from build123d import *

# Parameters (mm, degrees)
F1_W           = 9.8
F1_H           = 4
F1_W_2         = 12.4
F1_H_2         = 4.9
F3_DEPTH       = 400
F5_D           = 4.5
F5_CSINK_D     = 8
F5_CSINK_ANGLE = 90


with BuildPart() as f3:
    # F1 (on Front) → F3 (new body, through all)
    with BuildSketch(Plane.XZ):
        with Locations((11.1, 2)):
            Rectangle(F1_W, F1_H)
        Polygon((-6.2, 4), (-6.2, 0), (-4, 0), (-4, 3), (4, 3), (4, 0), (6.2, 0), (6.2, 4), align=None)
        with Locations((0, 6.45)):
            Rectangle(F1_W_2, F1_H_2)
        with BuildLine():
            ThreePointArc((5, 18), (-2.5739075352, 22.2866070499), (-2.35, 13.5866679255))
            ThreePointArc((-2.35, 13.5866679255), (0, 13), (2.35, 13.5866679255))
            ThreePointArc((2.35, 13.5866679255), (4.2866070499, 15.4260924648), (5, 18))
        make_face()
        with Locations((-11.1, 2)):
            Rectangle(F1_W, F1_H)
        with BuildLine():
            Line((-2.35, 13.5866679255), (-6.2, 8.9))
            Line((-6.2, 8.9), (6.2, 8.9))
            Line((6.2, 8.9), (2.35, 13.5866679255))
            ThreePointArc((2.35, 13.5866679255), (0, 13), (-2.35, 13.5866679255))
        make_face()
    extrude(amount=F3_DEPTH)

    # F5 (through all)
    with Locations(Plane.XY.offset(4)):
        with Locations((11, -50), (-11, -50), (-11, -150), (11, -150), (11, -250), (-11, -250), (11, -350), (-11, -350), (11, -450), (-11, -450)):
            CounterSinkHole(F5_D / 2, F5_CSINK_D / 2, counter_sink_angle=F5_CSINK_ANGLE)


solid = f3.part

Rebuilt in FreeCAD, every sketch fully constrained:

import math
import FreeCAD as App
import Part
import Sketcher

V = App.Vector

doc = App.newDocument("Part")
params = doc.addObject("Spreadsheet::Sheet", "Params")
for row, (alias, value) in enumerate([
    ("sketch1_radius", "5 mm"),
    ("sketch1_width", "12 mm"),
    ("sketch1_width2", "8 mm"),
    ("sketch1_height", "4 mm"),
    ("sketch1_height2", "3 mm"),
    ("pad1_length", "400 mm"),
    ("sketch2_diameter", "4.5 mm"),
    ("hole_diameter", "4.5 mm"),
    ("hole_csink_diameter", "8 mm"),
], start=1):
    params.set(f"A{row}", alias)
    params.set(f"B{row}", "=" + value)
    params.setAlias(f"B{row}", alias)

body = doc.addObject("PartDesign::Body", "Body")

# Sketch on XZ plane
sketch1 = doc.addObject("Sketcher::SketchObject", "Sketch")
body.addObject(sketch1)
sketch1.AttachmentSupport = (doc.XZ_Plane, [""])
sketch1.MapMode = "FlatFace"
sketch1.addGeometry([
    Part.LineSegment(V(16, 0, 0), V(16, 4, 0)),  # 0
    Part.LineSegment(V(16, 4, 0), V(6.2, 4, 0)),  # 1
    Part.LineSegment(V(6.2, 4, 0), V(6.2, 8.9, 0)),  # 2
    Part.LineSegment(V(6.2, 8.9, 0), V(2.4, 13.6, 0)),  # 3
    Part.ArcOfCircle(Part.Circle(V(0, 18, 0), V(0, 0, 1), 5), math.radians(-62), math.radians(0)),  # 4
    Part.ArcOfCircle(Part.Circle(V(0, 18, 0), V(0, 0, 1), 5), math.radians(0), math.radians(242)),  # 5
    Part.LineSegment(V(-2.4, 13.6, 0), V(-6.2, 8.9, 0)),  # 6
    Part.LineSegment(V(-6.2, 8.9, 0), V(-6.2, 4, 0)),  # 7
    Part.LineSegment(V(-6.2, 4, 0), V(-16, 4, 0)),  # 8
    Part.LineSegment(V(-16, 4, 0), V(-16, 0, 0)),  # 9
    Part.LineSegment(V(-16, 0, 0), V(-4, 0, 0)),  # 10
    Part.LineSegment(V(-4, 0, 0), V(-4, 3, 0)),  # 11
    Part.LineSegment(V(-4, 3, 0), V(4, 3, 0)),  # 12
    Part.LineSegment(V(4, 3, 0), V(4, 0, 0)),  # 13
    Part.LineSegment(V(4, 0, 0), V(16, 0, 0)),  # 14
], False)
sketch1.addConstraint([
    Sketcher.Constraint("Coincident", 0, 2, 1, 1),
    Sketcher.Constraint("Coincident", 1, 2, 2, 1),
    Sketcher.Constraint("Coincident", 2, 2, 3, 1),
    Sketcher.Constraint("Coincident", 3, 2, 4, 1),
    Sketcher.Constraint("Tangent", 4, 2, 5, 1),
    Sketcher.Constraint("Coincident", 5, 2, 6, 1),
    Sketcher.Constraint("Coincident", 6, 2, 7, 1),
    Sketcher.Constraint("Coincident", 7, 2, 8, 1),
    Sketcher.Constraint("Coincident", 8, 2, 9, 1),
    Sketcher.Constraint("Coincident", 9, 2, 10, 1),
    Sketcher.Constraint("Coincident", 10, 2, 11, 1),
    Sketcher.Constraint("Coincident", 11, 2, 12, 1),
    Sketcher.Constraint("Coincident", 12, 2, 13, 1),
    Sketcher.Constraint("Coincident", 13, 2, 14, 1),
    Sketcher.Constraint("Coincident", 14, 2, 0, 1),
    Sketcher.Constraint("Vertical", 0),
    Sketcher.Constraint("Horizontal", 1),
    Sketcher.Constraint("Vertical", 2),
    Sketcher.Constraint("Vertical", 7),
    Sketcher.Constraint("Horizontal", 8),
    Sketcher.Constraint("Vertical", 9),
    Sketcher.Constraint("Horizontal", 10),
    Sketcher.Constraint("Vertical", 11),
    Sketcher.Constraint("Horizontal", 12),
    Sketcher.Constraint("Vertical", 13),
    Sketcher.Constraint("Horizontal", 14),
    Sketcher.Constraint("Equal", 4, 5),
    Sketcher.Constraint("Symmetric", 10, 2, 13, 2, -1, 1),
    Sketcher.Constraint("Symmetric", 3, 2, 5, 2, -2),
    Sketcher.Constraint("Symmetric", 2, 2, 6, 2, -2),
    Sketcher.Constraint("Symmetric", 0, 2, 8, 2, -2),
    Sketcher.Constraint("PointOnObject", 9, 2, -1),
    Sketcher.Constraint("Horizontal", 5, 3, 4, 2),
    Sketcher.Constraint("Radius", 4, 5.0),
    Sketcher.Constraint("DistanceX", 10, 1, 10, 2, 12.0),
    Sketcher.Constraint("DistanceX", 12, 1, 12, 2, 8.0),
    Sketcher.Constraint("DistanceY", 0, 1, 0, 2, 4.0),
    Sketcher.Constraint("DistanceY", 11, 1, 11, 2, 3.0),
    Sketcher.Constraint("DistanceX", 1, 2, 1, 1, 9.8),
    Sketcher.Constraint("DistanceY", 2, 1, 2, 2, 4.9),
    Sketcher.Constraint("DistanceY", -1, 1, 4, 3, 18.0),
    Sketcher.Constraint("DistanceX", 5, 2, 3, 2, 4.7),
])
sketch1.setExpression("Constraints[33]", "Params.sketch1_radius")
sketch1.setExpression("Constraints[34]", "Params.sketch1_width")
sketch1.setExpression("Constraints[35]", "Params.sketch1_width2")
sketch1.setExpression("Constraints[36]", "Params.sketch1_height")
sketch1.setExpression("Constraints[37]", "Params.sketch1_height2")
pad1 = doc.addObject("PartDesign::Pad", "Pad")
body.addObject(pad1)
pad1.Profile = sketch1
pad1.setExpression("Length", "Params.pad1_length")

# Sketch on XY plane
sketch2 = doc.addObject("Sketcher::SketchObject", "Sketch001")
body.addObject(sketch2)
sketch2.AttachmentSupport = (doc.XY_Plane, [""])
sketch2.MapMode = "FlatFace"
sketch2.AttachmentOffset = App.Placement(V(0, 0, 4), App.Rotation())
sketch2.addGeometry([
    Part.Circle(V(11, -50, 0), V(0, 0, 1), 2.2),  # 0
    Part.Circle(V(-11, -50, 0), V(0, 0, 1), 2.2),  # 1
    Part.Circle(V(-11, -150, 0), V(0, 0, 1), 2.2),  # 2
    Part.Circle(V(11, -150, 0), V(0, 0, 1), 2.2),  # 3
    Part.Circle(V(11, -250, 0), V(0, 0, 1), 2.2),  # 4
    Part.Circle(V(-11, -250, 0), V(0, 0, 1), 2.2),  # 5
    Part.Circle(V(11, -350, 0), V(0, 0, 1), 2.2),  # 6
    Part.Circle(V(-11, -350, 0), V(0, 0, 1), 2.2),  # 7
    Part.Circle(V(11, -450, 0), V(0, 0, 1), 2.2),  # 8
    Part.Circle(V(-11, -450, 0), V(0, 0, 1), 2.2),  # 9
], False)
sketch2.addConstraint([
    Sketcher.Constraint("Equal", 0, 1),
    Sketcher.Constraint("Equal", 1, 2),
    Sketcher.Constraint("Equal", 2, 3),
    Sketcher.Constraint("Equal", 3, 4),
    Sketcher.Constraint("Equal", 4, 5),
    Sketcher.Constraint("Equal", 5, 6),
    Sketcher.Constraint("Equal", 6, 7),
    Sketcher.Constraint("Equal", 7, 8),
    Sketcher.Constraint("Equal", 8, 9),
    Sketcher.Constraint("Symmetric", 0, 3, 1, 3, -2),
    Sketcher.Constraint("Symmetric", 2, 3, 3, 3, -2),
    Sketcher.Constraint("Symmetric", 4, 3, 5, 3, -2),
    Sketcher.Constraint("Symmetric", 6, 3, 7, 3, -2),
    Sketcher.Constraint("Symmetric", 8, 3, 9, 3, -2),
    Sketcher.Constraint("Vertical", 1, 3, 2, 3),
    Sketcher.Constraint("Vertical", 3, 3, 4, 3),
    Sketcher.Constraint("Vertical", 4, 3, 6, 3),
    Sketcher.Constraint("Vertical", 6, 3, 8, 3),
    Sketcher.Constraint("Diameter", 0, 4.5),
    Sketcher.Constraint("DistanceX", -1, 1, 0, 3, 11.0),
    Sketcher.Constraint("DistanceY", 0, 3, -1, 1, 50.0),
    Sketcher.Constraint("DistanceY", 2, 3, -1, 1, 150.0),
    Sketcher.Constraint("DistanceY", 4, 3, -1, 1, 250.0),
    Sketcher.Constraint("DistanceY", 6, 3, -1, 1, 350.0),
    Sketcher.Constraint("DistanceY", 8, 3, -1, 1, 450.0),
])
sketch2.setExpression("Constraints[18]", "Params.sketch2_diameter")
doc.recompute()
hole = doc.addObject("PartDesign::Hole", "Hole")
body.addObject(hole)
hole.Profile = sketch2
hole.ThreadType = "None"
hole.setExpression("Diameter", "Params.hole_diameter")
hole.DepthType = "ThroughAll"
hole.HoleCutType = "Countersink"
hole.setExpression("HoleCutDiameter", "Params.hole_csink_diameter")
hole.HoleCutCountersinkAngle = 90

doc.recompute()
